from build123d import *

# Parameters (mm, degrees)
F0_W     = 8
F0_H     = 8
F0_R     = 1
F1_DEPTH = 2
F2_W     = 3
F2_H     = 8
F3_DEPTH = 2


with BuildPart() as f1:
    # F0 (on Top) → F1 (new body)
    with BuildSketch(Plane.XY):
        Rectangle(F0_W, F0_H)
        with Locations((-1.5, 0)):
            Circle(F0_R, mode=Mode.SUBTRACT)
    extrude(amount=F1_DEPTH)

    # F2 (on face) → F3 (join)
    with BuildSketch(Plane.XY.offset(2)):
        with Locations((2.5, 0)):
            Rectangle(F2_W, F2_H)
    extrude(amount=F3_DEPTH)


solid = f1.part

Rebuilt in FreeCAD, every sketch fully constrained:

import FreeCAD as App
import Part
import Sketcher

V = App.Vector
Q = App.Units.Quantity

doc = App.newDocument("Part")
body = doc.addObject("PartDesign::Body", "Body")

sketch1 = body.newObject("Sketcher::SketchObject", "Sketch")
sketch1.AttachmentSupport = (doc.getObject("XY_Plane"), [""])
sketch1.MapMode = "FlatFace"
sketch1.addGeometry(Part.LineSegment(V(-4, 4, 0), V(-4, -4, 0)), False)
sketch1.addGeometry(Part.LineSegment(V(-4, -4, 0), V(4, -4, 0)), False)
sketch1.addGeometry(Part.LineSegment(V(4, -4, 0), V(4, 4, 0)), False)
sketch1.addGeometry(Part.LineSegment(V(4, 4, 0), V(-4, 4, 0)), False)
sketch1.addGeometry(Part.Circle(V(-1.5, 0, 0), V(0, 0, 1), 1), False)
sketch1.addConstraint(Sketcher.Constraint("Coincident", 0, 2, 1, 1))
sketch1.addConstraint(Sketcher.Constraint("Coincident", 1, 2, 2, 1))
sketch1.addConstraint(Sketcher.Constraint("Coincident", 2, 2, 3, 1))
sketch1.addConstraint(Sketcher.Constraint("Coincident", 3, 2, 0, 1))
sketch1.addConstraint(Sketcher.Constraint("Vertical", 0))
sketch1.addConstraint(Sketcher.Constraint("Horizontal", 1))
sketch1.addConstraint(Sketcher.Constraint("Vertical", 2))
sketch1.addConstraint(Sketcher.Constraint("Horizontal", 3))
sketch1.addConstraint(Sketcher.Constraint("Symmetric", 0, 2, 2, 2, -1, 1))
sketch1.addConstraint(Sketcher.Constraint("PointOnObject", 4, 3, -1))
sketch1.addConstraint(Sketcher.Constraint("Equal", 3, 0))
sketch1.addConstraint(Sketcher.Constraint("Diameter", 4, Q("2 mm")))
sketch1.addConstraint(Sketcher.Constraint("DistanceX", 1, 1, 1, 2, Q("8 mm")))
sketch1.addConstraint(Sketcher.Constraint("DistanceX", 4, 3, -1, 1, Q("1.5 mm")))
pad1 = body.newObject("PartDesign::Pad", "Pad")
pad1.Profile = sketch1
pad1.Length = 2

sketch2 = body.newObject("Sketcher::SketchObject", "Sketch001")
sketch2.AttachmentSupport = (doc.getObject("XY_Plane"), [""])
sketch2.MapMode = "FlatFace"
sketch2.AttachmentOffset = App.Placement(V(0, 0, 2), App.Rotation())
sketch2.addGeometry(Part.LineSegment(V(1, 4, 0), V(1, -4, 0)), False)
sketch2.addGeometry(Part.LineSegment(V(1, -4, 0), V(4, -4, 0)), False)
sketch2.addGeometry(Part.LineSegment(V(4, -4, 0), V(4, 4, 0)), False)
sketch2.addGeometry(Part.LineSegment(V(4, 4, 0), V(1, 4, 0)), False)
sketch2.addConstraint(Sketcher.Constraint("Coincident", 0, 2, 1, 1))
sketch2.addConstraint(Sketcher.Constraint("Coincident", 1, 2, 2, 1))
sketch2.addConstraint(Sketcher.Constraint("Coincident", 2, 2, 3, 1))
sketch2.addConstraint(Sketcher.Constraint("Coincident", 3, 2, 0, 1))
sketch2.addConstraint(Sketcher.Constraint("Vertical", 0))
sketch2.addConstraint(Sketcher.Constraint("Horizontal", 1))
sketch2.addConstraint(Sketcher.Constraint("Vertical", 2))
sketch2.addConstraint(Sketcher.Constraint("Horizontal", 3))
sketch2.addConstraint(Sketcher.Constraint("DistanceX", 1, 1, 1, 2, Q("3 mm")))
sketch2.addConstraint(Sketcher.Constraint("DistanceY", 0, 2, 0, 1, Q("8 mm")))
sketch2.addConstraint(Sketcher.Constraint("DistanceX", -1, 1, 0, 2, Q("1 mm")))
sketch2.addConstraint(Sketcher.Constraint("DistanceY", 0, 2, -1, 1, Q("4 mm")))
pad2 = body.newObject("PartDesign::Pad", "Pad001")
pad2.Profile = sketch2
pad2.Length = 2

doc.recompute()
